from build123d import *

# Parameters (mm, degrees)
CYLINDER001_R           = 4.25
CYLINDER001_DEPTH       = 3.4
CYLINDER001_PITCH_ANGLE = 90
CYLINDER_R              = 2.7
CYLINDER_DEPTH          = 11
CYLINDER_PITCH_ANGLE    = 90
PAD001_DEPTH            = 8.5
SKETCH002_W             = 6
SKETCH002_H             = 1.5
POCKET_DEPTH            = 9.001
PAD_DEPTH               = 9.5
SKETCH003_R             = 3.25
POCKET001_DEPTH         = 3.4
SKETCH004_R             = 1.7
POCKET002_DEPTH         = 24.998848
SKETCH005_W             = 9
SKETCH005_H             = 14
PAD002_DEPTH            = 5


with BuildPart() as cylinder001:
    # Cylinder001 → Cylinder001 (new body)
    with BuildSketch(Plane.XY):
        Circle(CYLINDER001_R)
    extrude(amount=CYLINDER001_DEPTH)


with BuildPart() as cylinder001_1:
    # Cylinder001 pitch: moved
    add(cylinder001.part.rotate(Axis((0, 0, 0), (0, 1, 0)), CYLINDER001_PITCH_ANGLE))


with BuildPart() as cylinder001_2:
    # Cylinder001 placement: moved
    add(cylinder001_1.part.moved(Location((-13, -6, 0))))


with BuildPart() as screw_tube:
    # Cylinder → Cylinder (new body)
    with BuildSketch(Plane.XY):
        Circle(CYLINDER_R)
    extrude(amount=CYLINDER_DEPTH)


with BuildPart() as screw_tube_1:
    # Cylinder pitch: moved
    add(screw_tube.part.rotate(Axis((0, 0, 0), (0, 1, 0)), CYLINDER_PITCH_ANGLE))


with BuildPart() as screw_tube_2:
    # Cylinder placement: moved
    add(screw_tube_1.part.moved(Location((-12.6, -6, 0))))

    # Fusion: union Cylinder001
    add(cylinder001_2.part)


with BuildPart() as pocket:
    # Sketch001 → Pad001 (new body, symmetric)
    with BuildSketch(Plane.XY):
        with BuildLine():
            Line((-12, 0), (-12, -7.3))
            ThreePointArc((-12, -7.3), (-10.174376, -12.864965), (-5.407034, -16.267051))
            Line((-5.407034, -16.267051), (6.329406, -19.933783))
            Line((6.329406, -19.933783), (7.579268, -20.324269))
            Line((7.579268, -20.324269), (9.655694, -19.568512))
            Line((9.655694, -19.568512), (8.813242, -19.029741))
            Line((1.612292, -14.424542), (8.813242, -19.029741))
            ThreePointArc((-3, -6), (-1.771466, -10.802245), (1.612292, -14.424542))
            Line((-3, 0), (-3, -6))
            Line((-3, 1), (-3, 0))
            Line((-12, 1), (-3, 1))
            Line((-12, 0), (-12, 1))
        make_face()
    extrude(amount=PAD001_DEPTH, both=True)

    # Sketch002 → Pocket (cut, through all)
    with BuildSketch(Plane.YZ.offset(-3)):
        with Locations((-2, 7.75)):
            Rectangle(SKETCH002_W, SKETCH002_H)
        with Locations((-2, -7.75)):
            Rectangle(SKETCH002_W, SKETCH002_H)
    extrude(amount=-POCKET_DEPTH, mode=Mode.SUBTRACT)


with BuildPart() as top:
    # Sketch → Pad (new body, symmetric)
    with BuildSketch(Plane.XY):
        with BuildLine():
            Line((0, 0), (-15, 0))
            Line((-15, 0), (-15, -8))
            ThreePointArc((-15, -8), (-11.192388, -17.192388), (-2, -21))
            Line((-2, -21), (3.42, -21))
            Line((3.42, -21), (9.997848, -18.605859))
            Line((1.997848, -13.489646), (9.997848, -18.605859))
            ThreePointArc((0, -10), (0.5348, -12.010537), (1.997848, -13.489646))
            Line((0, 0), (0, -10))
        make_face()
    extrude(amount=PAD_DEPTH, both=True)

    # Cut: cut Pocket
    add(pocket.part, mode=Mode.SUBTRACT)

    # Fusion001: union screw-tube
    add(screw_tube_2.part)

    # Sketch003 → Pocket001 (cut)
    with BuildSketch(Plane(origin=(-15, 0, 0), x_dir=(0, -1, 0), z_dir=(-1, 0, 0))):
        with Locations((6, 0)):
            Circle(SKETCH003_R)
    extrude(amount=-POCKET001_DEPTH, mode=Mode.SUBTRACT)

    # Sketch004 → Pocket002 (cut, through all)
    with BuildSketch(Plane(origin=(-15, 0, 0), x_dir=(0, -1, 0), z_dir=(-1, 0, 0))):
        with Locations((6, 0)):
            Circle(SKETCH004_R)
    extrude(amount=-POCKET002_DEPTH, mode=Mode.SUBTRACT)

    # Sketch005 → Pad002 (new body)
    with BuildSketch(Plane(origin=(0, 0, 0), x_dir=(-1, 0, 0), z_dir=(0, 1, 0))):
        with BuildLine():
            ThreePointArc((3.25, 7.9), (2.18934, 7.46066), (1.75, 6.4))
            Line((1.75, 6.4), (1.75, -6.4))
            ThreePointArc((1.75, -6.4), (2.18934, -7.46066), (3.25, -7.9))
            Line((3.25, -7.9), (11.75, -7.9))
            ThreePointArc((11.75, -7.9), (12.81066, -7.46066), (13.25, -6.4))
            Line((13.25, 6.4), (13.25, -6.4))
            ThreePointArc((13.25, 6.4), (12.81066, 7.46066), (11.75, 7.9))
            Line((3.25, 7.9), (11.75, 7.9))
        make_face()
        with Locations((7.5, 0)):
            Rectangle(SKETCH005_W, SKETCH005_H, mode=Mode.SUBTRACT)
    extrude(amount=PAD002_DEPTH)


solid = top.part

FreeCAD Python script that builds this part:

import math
import FreeCAD as App
import Part
import Sketcher
from FreeCAD import Vector
Q = App.Units.Quantity

doc = App.newDocument("Part")
body = doc.addObject("PartDesign::Body", "Body")

sketch1 = body.newObject("Sketcher::SketchObject", "Sketch")
sketch1.AttachmentSupport = (doc.getObject("XY_Plane"), [""])
sketch1.MapMode = "FlatFace"
sketch1.addGeometry(Part.Circle(Vector(0, 0, 0), Vector(0, 0, 1), 4.2), False)
sketch1.addConstraint(Sketcher.Constraint("Coincident", 0, 3, -1, 1))
sketch1.addConstraint(Sketcher.Constraint("Diameter", 0, 8.5))
pad1 = body.newObject("PartDesign::Pad", "Pad")
pad1.Profile = sketch1
pad1.Length = 3.4
body2 = doc.addObject("PartDesign::Body", "Body001")
doc.recompute()

body.Placement = App.Placement(Vector(0, 0, 0), App.Rotation(Vector(0, 1, 0), 90))
boolean = body2.newObject("PartDesign::Boolean", "Boolean")
boolean.Type = "Fuse"
boolean.addObjects([body])
body3 = doc.addObject("PartDesign::Body", "Body002")
doc.recompute()

body2.Placement = App.Placement(Vector(-13, -6, 0), App.Rotation(Vector(0, 0, 1), 0))
boolean2 = body3.newObject("PartDesign::Boolean", "Boolean001")
boolean2.Type = "Fuse"
boolean2.addObjects([body2])
body4 = doc.addObject("PartDesign::Body", "Body003")

sketch2 = body4.newObject("Sketcher::SketchObject", "Sketch001")
sketch2.AttachmentSupport = (doc.getObject("XY_Plane003"), [""])
sketch2.MapMode = "FlatFace"
sketch2.addGeometry(Part.Circle(Vector(0, 0, 0), Vector(0, 0, 1), 2.7), False)
sketch2.addConstraint(Sketcher.Constraint("Coincident", 0, 3, -1, 1))
sketch2.addConstraint(Sketcher.Constraint("Diameter", 0, 5.4))
pad2 = body4.newObject("PartDesign::Pad", "Pad001")
pad2.Profile = sketch2
pad2.Length = 11
body5 = doc.addObject("PartDesign::Body", "Body004")
doc.recompute()

body4.Placement = App.Placement(Vector(0, 0, 0), App.Rotation(Vector(0, 1, 0), 90))
boolean3 = body5.newObject("PartDesign::Boolean", "Boolean002")
boolean3.Type = "Fuse"
boolean3.addObjects([body4])
body6 = doc.addObject("PartDesign::Body", "Body005")
doc.recompute()

body5.Placement = App.Placement(Vector(-12.6, -6, 0), App.Rotation(Vector(0, 0, 1), 0))
boolean4 = body6.newObject("PartDesign::Boolean", "Boolean003")
boolean4.Type = "Fuse"
boolean4.addObjects([body5])
doc.recompute()

boolean5 = body6.newObject("PartDesign::Boolean", "Boolean004")
boolean5.Type = "Fuse"
boolean5.addObjects([body3])
body7 = doc.addObject("PartDesign::Body", "Body006")

sketch3 = body7.newObject("Sketcher::SketchObject", "Sketch002")
sketch3.AttachmentSupport = (doc.getObject("XY_Plane006"), [""])
sketch3.MapMode = "FlatFace"
sketch3.addGeometry(Part.ArcOfCircle(Part.Circle(Vector(-2.6, -7.3, 0), Vector(0, 0, 1), 9.4), math.radians(180), math.radians(253)), False)
sketch3.addGeometry(Part.LineSegment(Vector(-5.4, -16.3, 0), Vector(6.3, -19.9, 0)), False)
sketch3.addGeometry(Part.LineSegment(Vector(6.3, -19.9, 0), Vector(7.6, -20.3, 0)), False)
sketch3.addGeometry(Part.LineSegment(Vector(7.6, -20.3, 0), Vector(9.7, -19.6, 0)), False)
sketch3.addGeometry(Part.LineSegment(Vector(9.7, -19.6, 0), Vector(8.8, -19, 0)), False)
sketch3.addGeometry(Part.LineSegment(Vector(8.8, -19, 0), Vector(1.6, -14.4, 0)), False)
sketch3.addGeometry(Part.ArcOfCircle(Part.Circle(Vector(7, -6, 0), Vector(0, 0, 1), 10), math.radians(180), math.radians(237)), False)
sketch3.addGeometry(Part.LineSegment(Vector(-3, -6, 0), Vector(-3, 1, 0)), False)
sketch3.addGeometry(Part.LineSegment(Vector(-3, 1, 0), Vector(-12, 1, 0)), False)
sketch3.addGeometry(Part.LineSegment(Vector(-12, 1, 0), Vector(-12, -7.3, 0)), False)
sketch3.addConstraint(Sketcher.Constraint("Tangent", 0, 2, 1, 1))
sketch3.addConstraint(Sketcher.Constraint("Coincident", 1, 2, 2, 1))
sketch3.addConstraint(Sketcher.Constraint("Coincident", 2, 2, 3, 1))
sketch3.addConstraint(Sketcher.Constraint("Coincident", 3, 2, 4, 1))
sketch3.addConstraint(Sketcher.Constraint("Coincident", 4, 2, 5, 1))
sketch3.addConstraint(Sketcher.Constraint("Tangent", 5, 2, 6, 2))
sketch3.addConstraint(Sketcher.Constraint("Tangent", 6, 1, 7, 1))
sketch3.addConstraint(Sketcher.Constraint("Coincident", 7, 2, 8, 1))
sketch3.addConstraint(Sketcher.Constraint("Coincident", 8, 2, 9, 1))
sketch3.addConstraint(Sketcher.Constraint("Tangent", 9, 2, 0, 1))
sketch3.addConstraint(Sketcher.Constraint("Vertical", 7))
sketch3.addConstraint(Sketcher.Constraint("Horizontal", 8))
sketch3.addConstraint(Sketcher.Constraint("Vertical", 9))
sketch3.addConstraint(Sketcher.Constraint("Parallel", 1, 2))
sketch3.addConstraint(Sketcher.Constraint("Parallel", 4, 5))
sketch3.addConstraint(Sketcher.Constraint("Radius", 6, 10.0))
sketch3.addConstraint(Sketcher.Constraint("DistanceX", 8, 2, 8, 1, 9.0))
sketch3.addConstraint(Sketcher.Constraint("DistanceY", 7, 1, 7, 2, 7.0))
sketch3.addConstraint(Sketcher.Constraint("Angle", 3, Q("19.999994 deg")))
sketch3.addConstraint(Sketcher.Constraint("Distance", 4, 1.0))
sketch3.addConstraint(Sketcher.Constraint("DistanceY", 9, 2, 9, 1, 8.3))
sketch3.addConstraint(Sketcher.Constraint("DistanceX", -1, 1, 6, 3, 7.0))
sketch3.addConstraint(Sketcher.Constraint("DistanceY", 6, 1, -1, 1, 6.0))
sketch3.addConstraint(Sketcher.Constraint("Angle", 5, Q("147.400004 deg")))
sketch3.addConstraint(Sketcher.Constraint("Angle", 1, Q("-17.349997 deg")))
sketch3.addConstraint(Sketcher.Constraint("Radius", 0, 9.394476))
sketch3.addConstraint(Sketcher.Constraint("DistanceY", 4, 2, 5, 2, 4.605199))
sketch3.addConstraint(Sketcher.Constraint("Distance", 1, 12.295891))
pad3 = body7.newObject("PartDesign::Pad", "Pad002")
pad3.Profile = sketch3
pad3.Length = 17
pad3.Midplane = True

sketch4 = body7.newObject("Sketcher::SketchObject", "Sketch003")
sketch4.AttachmentSupport = (doc.getObject("YZ_Plane006"), [""])
sketch4.MapMode = "FlatFace"
sketch4.AttachmentOffset = App.Placement(Vector(0, 0, -3), App.Rotation())
sketch4.addGeometry(Part.LineSegment(Vector(-5, 8.5, 0), Vector(-5, 7, 0)), False)
sketch4.addGeometry(Part.LineSegment(Vector(-5, 7, 0), Vector(1, 7, 0)), False)
sketch4.addGeometry(Part.LineSegment(Vector(1, 7, 0), Vector(1, 8.5, 0)), False)
sketch4.addGeometry(Part.LineSegment(Vector(1, 8.5, 0), Vector(-5, 8.5, 0)), False)
sketch4.addGeometry(Part.LineSegment(Vector(-5, -7, 0), Vector(-5, -8.5, 0)), False)
sketch4.addGeometry(Part.LineSegment(Vector(-5, -8.5, 0), Vector(1, -8.5, 0)), False)
sketch4.addGeometry(Part.LineSegment(Vector(1, -8.5, 0), Vector(1, -7, 0)), False)
sketch4.addGeometry(Part.LineSegment(Vector(1, -7, 0), Vector(-5, -7, 0)), False)
sketch4.addConstraint(Sketcher.Constraint("Coincident", 0, 2, 1, 1))
sketch4.addConstraint(Sketcher.Constraint("Coincident", 1, 2, 2, 1))
sketch4.addConstraint(Sketcher.Constraint("Coincident", 2, 2, 3, 1))
sketch4.addConstraint(Sketcher.Constraint("Coincident", 3, 2, 0, 1))
sketch4.addConstraint(Sketcher.Constraint("Coincident", 4, 2, 5, 1))
sketch4.addConstraint(Sketcher.Constraint("Coincident", 5, 2, 6, 1))
sketch4.addConstraint(Sketcher.Constraint("Coincident", 6, 2, 7, 1))
sketch4.addConstraint(Sketcher.Constraint("Coincident", 7, 2, 4, 1))
sketch4.addConstraint(Sketcher.Constraint("Vertical", 0))
sketch4.addConstraint(Sketcher.Constraint("Horizontal", 1))
sketch4.addConstraint(Sketcher.Constraint("Vertical", 2))
sketch4.addConstraint(Sketcher.Constraint("Horizontal", 3))
sketch4.addConstraint(Sketcher.Constraint("Vertical", 4))
sketch4.addConstraint(Sketcher.Constraint("Horizontal", 5))
sketch4.addConstraint(Sketcher.Constraint("Vertical", 6))
sketch4.addConstraint(Sketcher.Constraint("Horizontal", 7))
sketch4.addConstraint(Sketcher.Constraint("Symmetric", 3, 2, 4, 2, -1))
sketch4.addConstraint(Sketcher.Constraint("Symmetric", 1, 2, 6, 2, -1))
sketch4.addConstraint(Sketcher.Constraint("DistanceX", 1, 1, 1, 2, 6.0))
sketch4.addConstraint(Sketcher.Constraint("DistanceY", 0, 2, 0, 1, 1.5))
sketch4.addConstraint(Sketcher.Constraint("DistanceX", 0, 2, -1, 1, 5.0))
sketch4.addConstraint(Sketcher.Constraint("DistanceY", -1, 1, 0, 2, 7.0))
pocket1 = body7.newObject("PartDesign::Pocket", "Pocket")
pocket1.Profile = sketch4
pocket1.Type = "ThroughAll"
body8 = doc.addObject("PartDesign::Body", "Body007")

sketch5 = body8.newObject("Sketcher::SketchObject", "Sketch004")
sketch5.AttachmentSupport = (doc.getObject("XY_Plane007"), [""])
sketch5.MapMode = "FlatFace"
sketch5.addGeometry(Part.LineSegment(Vector(0, 0, 0), Vector(-15, 0, 0)), False)
sketch5.addGeometry(Part.LineSegment(Vector(-15, 0, 0), Vector(-15, -8, 0)), False)
sketch5.addGeometry(Part.ArcOfCircle(Part.Circle(Vector(-2, -8, 0), Vector(0, 0, 1), 13), math.radians(-180), math.radians(-90)), False)
sketch5.addGeometry(Part.LineSegment(Vector(-2, -21, 0), Vector(3.4, -21, 0)), False)
sketch5.addGeometry(Part.LineSegment(Vector(3.4, -21, 0), Vector(10, -18.6, 0)), False)
sketch5.addGeometry(Part.LineSegment(Vector(10, -18.6, 0), Vector(2, -13.5, 0)), False)
sketch5.addGeometry(Part.ArcOfCircle(Part.Circle(Vector(4, -10, 0), Vector(0, 0, 1), 4), math.radians(180), math.radians(240)), False)
sketch5.addGeometry(Part.LineSegment(Vector(0, -10, 0), Vector(0, 0, 0)), False)
sketch5.addConstraint(Sketcher.Constraint("Coincident", 0, 2, 1, 1))
sketch5.addConstraint(Sketcher.Constraint("Tangent", 1, 2, 2, 1))
sketch5.addConstraint(Sketcher.Constraint("Tangent", 2, 2, 3, 1))
sketch5.addConstraint(Sketcher.Constraint("Coincident", 3, 2, 4, 1))
sketch5.addConstraint(Sketcher.Constraint("Coincident", 4, 2, 5, 1))
sketch5.addConstraint(Sketcher.Constraint("Coincident", 5, 2, 6, 2))
sketch5.addConstraint(Sketcher.Constraint("Tangent", 6, 1, 7, 1))
sketch5.addConstraint(Sketcher.Constraint("Coincident", 7, 2, 0, 1))
sketch5.addConstraint(Sketcher.Constraint("Horizontal", 0))
sketch5.addConstraint(Sketcher.Constraint("Vertical", 1))
sketch5.addConstraint(Sketcher.Constraint("Horizontal", 3))
sketch5.addConstraint(Sketcher.Constraint("Vertical", 7))
sketch5.addConstraint(Sketcher.Constraint("Coincident", 7, 2, -1, 1))
sketch5.addConstraint(Sketcher.Constraint("Radius", 2, 13.000001))
sketch5.addConstraint(Sketcher.Constraint("DistanceX", 0, 2, 0, 1, 15.0))
sketch5.addConstraint(Sketcher.Constraint("DistanceY", 1, 2, 1, 1, 8.0))
sketch5.addConstraint(Sketcher.Constraint("DistanceY", 7, 1, 7, 2, 10.0))
sketch5.addConstraint(Sketcher.Constraint("Angle", 4, Q("20.000001 deg")))
sketch5.addConstraint(Sketcher.Constraint("Distance", 4, 7.0))
sketch5.addConstraint(Sketcher.Constraint("Angle", 5, Q("147.400002 deg")))
sketch5.addConstraint(Sketcher.Constraint("DistanceX", 5, 2, 4, 2, 8.0))
sketch5.addConstraint(Sketcher.Constraint("DistanceX", 3, 1, 3, 2, 5.42))
pad4 = body8.newObject("PartDesign::Pad", "Pad003")
pad4.Profile = sketch5
pad4.Length = 19
pad4.Midplane = True
doc.recompute()

boolean6 = body8.newObject("PartDesign::Boolean", "Boolean005")
boolean6.Type = "Cut"
boolean6.addObjects([body7])
doc.recompute()

boolean7 = body8.newObject("PartDesign::Boolean", "Boolean006")
boolean7.Type = "Fuse"
boolean7.addObjects([body6])

sketch6 = body8.newObject("Sketcher::SketchObject", "Sketch005")
sketch6.AttachmentSupport = (doc.getObject("YZ_Plane007"), [""])
sketch6.MapMode = "FlatFace"
sketch6.AttachmentOffset = App.Placement(Vector(0, 0, -15), App.Rotation())
sketch6.addGeometry(Part.Circle(Vector(-6, 0, 0), Vector(0, 0, 1), 3.2), False)
sketch6.addConstraint(Sketcher.Constraint("PointOnObject", 0, 3, -1))
sketch6.addConstraint(Sketcher.Constraint("Diameter", 0, 6.5))
sketch6.addConstraint(Sketcher.Constraint("DistanceX", 0, 3, -1, 1, 6.0))
pocket2 = body8.newObject("PartDesign::Pocket", "Pocket001")
pocket2.Profile = sketch6
pocket2.Length = 3.4
pocket2.Reversed = True

sketch7 = body8.newObject("Sketcher::SketchObject", "Sketch006")
sketch7.AttachmentSupport = (doc.getObject("YZ_Plane007"), [""])
sketch7.MapMode = "FlatFace"
sketch7.AttachmentOffset = App.Placement(Vector(0, 0, -15), App.Rotation())
sketch7.addGeometry(Part.Circle(Vector(-6, 0, 0), Vector(0, 0, 1), 1.7), False)
sketch7.addConstraint(Sketcher.Constraint("PointOnObject", 0, 3, -1))
sketch7.addConstraint(Sketcher.Constraint("Diameter", 0, 3.4))
sketch7.addConstraint(Sketcher.Constraint("DistanceX", 0, 3, -1, 1, 6.0))
pocket3 = body8.newObject("PartDesign::Pocket", "Pocket002")
pocket3.Profile = sketch7
pocket3.Type = "ThroughAll"
pocket3.Reversed = True

sketch8 = body8.newObject("Sketcher::SketchObject", "Sketch007")
sketch8.AttachmentSupport = (doc.getObject("XZ_Plane007"), [""])
sketch8.MapMode = "FlatFace"
sketch8.addGeometry(Part.ArcOfCircle(Part.Circle(Vector(-3.3, 6.4, 0), Vector(0, 0, 1), 1.5), math.radians(0), math.radians(90)), False)
sketch8.addGeometry(Part.LineSegment(Vector(-1.8, 6.4, 0), Vector(-1.8, -6.4, 0)), False)
sketch8.addGeometry(Part.ArcOfCircle(Part.Circle(Vector(-3.3, -6.4, 0), Vector(0, 0, 1), 1.5), math.radians(-90), math.radians(0)), False)
sketch8.addGeometry(Part.LineSegment(Vector(-3.2, -7.9, 0), Vector(-11.8, -7.9, 0)), False)
sketch8.addGeometry(Part.ArcOfCircle(Part.Circle(Vector(-11.7, -6.4, 0), Vector(0, 0, 1), 1.5), math.radians(-180), math.radians(-90)), False)
sketch8.addGeometry(Part.LineSegment(Vector(-13.2, -6.4, 0), Vector(-13.2, 6.4, 0)), False)
sketch8.addGeometry(Part.ArcOfCircle(Part.Circle(Vector(-11.7, 6.4, 0), Vector(0, 0, 1), 1.5), math.radians(90), math.radians(180)), False)
sketch8.addGeometry(Part.LineSegment(Vector(-11.8, 7.9, 0), Vector(-3.2, 7.9, 0)), False)
sketch8.addGeometry(Part.LineSegment(Vector(-12, -7, 0), Vector(-3, -7, 0)), False)
sketch8.addGeometry(Part.LineSegment(Vector(-3, -7, 0), Vector(-3, 7, 0)), False)
sketch8.addGeometry(Part.LineSegment(Vector(-3, 7, 0), Vector(-12, 7, 0)), False)
sketch8.addGeometry(Part.LineSegment(Vector(-12, 7, 0), Vector(-12, -7, 0)), False)
sketch8.addConstraint(Sketcher.Constraint("Tangent", 0, 1, 1, 1))
sketch8.addConstraint(Sketcher.Constraint("Tangent", 1, 2, 2, 2))
sketch8.addConstraint(Sketcher.Constraint("Tangent", 2, 1, 3, 1))
sketch8.addConstraint(Sketcher.Constraint("Tangent", 3, 2, 4, 2))
sketch8.addConstraint(Sketcher.Constraint("Tangent", 4, 1, 5, 1))
sketch8.addConstraint(Sketcher.Constraint("Tangent", 5, 2, 6, 2))
sketch8.addConstraint(Sketcher.Constraint("Tangent", 6, 1, 7, 1))
sketch8.addConstraint(Sketcher.Constraint("Tangent", 7, 2, 0, 2))
sketch8.addConstraint(Sketcher.Constraint("Coincident", 8, 2, 9, 1))
sketch8.addConstraint(Sketcher.Constraint("Coincident", 9, 2, 10, 1))
sketch8.addConstraint(Sketcher.Constraint("Coincident", 10, 2, 11, 1))
sketch8.addConstraint(Sketcher.Constraint("Coincident", 11, 2, 8, 1))
sketch8.addConstraint(Sketcher.Constraint("Vertical", 1))
sketch8.addConstraint(Sketcher.Constraint("Horizontal", 3))
sketch8.addConstraint(Sketcher.Constraint("Vertical", 5))
sketch8.addConstraint(Sketcher.Constraint("Horizontal", 7))
sketch8.addConstraint(Sketcher.Constraint("Horizontal", 8))
sketch8.addConstraint(Sketcher.Constraint("Vertical", 9))
sketch8.addConstraint(Sketcher.Constraint("Horizontal", 10))
sketch8.addConstraint(Sketcher.Constraint("Vertical", 11))
sketch8.addConstraint(Sketcher.Constraint("Equal", 0, 2))
sketch8.addConstraint(Sketcher.Constraint("Equal", 2, 4))
sketch8.addConstraint(Sketcher.Constraint("Equal", 4, 6))
sketch8.addConstraint(Sketcher.Constraint("Radius", 0, 1.500001))
sketch8.addConstraint(Sketcher.Constraint("DistanceX", 8, 1, 8, 2, 9.0))
sketch8.addConstraint(Sketcher.Constraint("DistanceY", 9, 1, 9, 2, 14.0))
sketch8.addConstraint(Sketcher.Constraint("DistanceX", 3, 2, 3, 1, 8.5))
sketch8.addConstraint(Sketcher.Constraint("DistanceY", 1, 2, 1, 1, 12.8))
sketch8.addConstraint(Sketcher.Constraint("DistanceX", 8, 2, -1, 1, 3.0))
sketch8.addConstraint(Sketcher.Constraint("DistanceY", 8, 2, -1, 1, 7.0))
sketch8.addConstraint(Sketcher.Constraint("DistanceY", -1, 1, 0, 3, 6.399999))
sketch8.addConstraint(Sketcher.Constraint("DistanceX", 0, 3, -1, 1, 3.250001))
pad5 = body8.newObject("PartDesign::Pad", "Pad004")
pad5.Profile = sketch8
pad5.Length = 5
pad5.Reversed = True

doc.recompute()
